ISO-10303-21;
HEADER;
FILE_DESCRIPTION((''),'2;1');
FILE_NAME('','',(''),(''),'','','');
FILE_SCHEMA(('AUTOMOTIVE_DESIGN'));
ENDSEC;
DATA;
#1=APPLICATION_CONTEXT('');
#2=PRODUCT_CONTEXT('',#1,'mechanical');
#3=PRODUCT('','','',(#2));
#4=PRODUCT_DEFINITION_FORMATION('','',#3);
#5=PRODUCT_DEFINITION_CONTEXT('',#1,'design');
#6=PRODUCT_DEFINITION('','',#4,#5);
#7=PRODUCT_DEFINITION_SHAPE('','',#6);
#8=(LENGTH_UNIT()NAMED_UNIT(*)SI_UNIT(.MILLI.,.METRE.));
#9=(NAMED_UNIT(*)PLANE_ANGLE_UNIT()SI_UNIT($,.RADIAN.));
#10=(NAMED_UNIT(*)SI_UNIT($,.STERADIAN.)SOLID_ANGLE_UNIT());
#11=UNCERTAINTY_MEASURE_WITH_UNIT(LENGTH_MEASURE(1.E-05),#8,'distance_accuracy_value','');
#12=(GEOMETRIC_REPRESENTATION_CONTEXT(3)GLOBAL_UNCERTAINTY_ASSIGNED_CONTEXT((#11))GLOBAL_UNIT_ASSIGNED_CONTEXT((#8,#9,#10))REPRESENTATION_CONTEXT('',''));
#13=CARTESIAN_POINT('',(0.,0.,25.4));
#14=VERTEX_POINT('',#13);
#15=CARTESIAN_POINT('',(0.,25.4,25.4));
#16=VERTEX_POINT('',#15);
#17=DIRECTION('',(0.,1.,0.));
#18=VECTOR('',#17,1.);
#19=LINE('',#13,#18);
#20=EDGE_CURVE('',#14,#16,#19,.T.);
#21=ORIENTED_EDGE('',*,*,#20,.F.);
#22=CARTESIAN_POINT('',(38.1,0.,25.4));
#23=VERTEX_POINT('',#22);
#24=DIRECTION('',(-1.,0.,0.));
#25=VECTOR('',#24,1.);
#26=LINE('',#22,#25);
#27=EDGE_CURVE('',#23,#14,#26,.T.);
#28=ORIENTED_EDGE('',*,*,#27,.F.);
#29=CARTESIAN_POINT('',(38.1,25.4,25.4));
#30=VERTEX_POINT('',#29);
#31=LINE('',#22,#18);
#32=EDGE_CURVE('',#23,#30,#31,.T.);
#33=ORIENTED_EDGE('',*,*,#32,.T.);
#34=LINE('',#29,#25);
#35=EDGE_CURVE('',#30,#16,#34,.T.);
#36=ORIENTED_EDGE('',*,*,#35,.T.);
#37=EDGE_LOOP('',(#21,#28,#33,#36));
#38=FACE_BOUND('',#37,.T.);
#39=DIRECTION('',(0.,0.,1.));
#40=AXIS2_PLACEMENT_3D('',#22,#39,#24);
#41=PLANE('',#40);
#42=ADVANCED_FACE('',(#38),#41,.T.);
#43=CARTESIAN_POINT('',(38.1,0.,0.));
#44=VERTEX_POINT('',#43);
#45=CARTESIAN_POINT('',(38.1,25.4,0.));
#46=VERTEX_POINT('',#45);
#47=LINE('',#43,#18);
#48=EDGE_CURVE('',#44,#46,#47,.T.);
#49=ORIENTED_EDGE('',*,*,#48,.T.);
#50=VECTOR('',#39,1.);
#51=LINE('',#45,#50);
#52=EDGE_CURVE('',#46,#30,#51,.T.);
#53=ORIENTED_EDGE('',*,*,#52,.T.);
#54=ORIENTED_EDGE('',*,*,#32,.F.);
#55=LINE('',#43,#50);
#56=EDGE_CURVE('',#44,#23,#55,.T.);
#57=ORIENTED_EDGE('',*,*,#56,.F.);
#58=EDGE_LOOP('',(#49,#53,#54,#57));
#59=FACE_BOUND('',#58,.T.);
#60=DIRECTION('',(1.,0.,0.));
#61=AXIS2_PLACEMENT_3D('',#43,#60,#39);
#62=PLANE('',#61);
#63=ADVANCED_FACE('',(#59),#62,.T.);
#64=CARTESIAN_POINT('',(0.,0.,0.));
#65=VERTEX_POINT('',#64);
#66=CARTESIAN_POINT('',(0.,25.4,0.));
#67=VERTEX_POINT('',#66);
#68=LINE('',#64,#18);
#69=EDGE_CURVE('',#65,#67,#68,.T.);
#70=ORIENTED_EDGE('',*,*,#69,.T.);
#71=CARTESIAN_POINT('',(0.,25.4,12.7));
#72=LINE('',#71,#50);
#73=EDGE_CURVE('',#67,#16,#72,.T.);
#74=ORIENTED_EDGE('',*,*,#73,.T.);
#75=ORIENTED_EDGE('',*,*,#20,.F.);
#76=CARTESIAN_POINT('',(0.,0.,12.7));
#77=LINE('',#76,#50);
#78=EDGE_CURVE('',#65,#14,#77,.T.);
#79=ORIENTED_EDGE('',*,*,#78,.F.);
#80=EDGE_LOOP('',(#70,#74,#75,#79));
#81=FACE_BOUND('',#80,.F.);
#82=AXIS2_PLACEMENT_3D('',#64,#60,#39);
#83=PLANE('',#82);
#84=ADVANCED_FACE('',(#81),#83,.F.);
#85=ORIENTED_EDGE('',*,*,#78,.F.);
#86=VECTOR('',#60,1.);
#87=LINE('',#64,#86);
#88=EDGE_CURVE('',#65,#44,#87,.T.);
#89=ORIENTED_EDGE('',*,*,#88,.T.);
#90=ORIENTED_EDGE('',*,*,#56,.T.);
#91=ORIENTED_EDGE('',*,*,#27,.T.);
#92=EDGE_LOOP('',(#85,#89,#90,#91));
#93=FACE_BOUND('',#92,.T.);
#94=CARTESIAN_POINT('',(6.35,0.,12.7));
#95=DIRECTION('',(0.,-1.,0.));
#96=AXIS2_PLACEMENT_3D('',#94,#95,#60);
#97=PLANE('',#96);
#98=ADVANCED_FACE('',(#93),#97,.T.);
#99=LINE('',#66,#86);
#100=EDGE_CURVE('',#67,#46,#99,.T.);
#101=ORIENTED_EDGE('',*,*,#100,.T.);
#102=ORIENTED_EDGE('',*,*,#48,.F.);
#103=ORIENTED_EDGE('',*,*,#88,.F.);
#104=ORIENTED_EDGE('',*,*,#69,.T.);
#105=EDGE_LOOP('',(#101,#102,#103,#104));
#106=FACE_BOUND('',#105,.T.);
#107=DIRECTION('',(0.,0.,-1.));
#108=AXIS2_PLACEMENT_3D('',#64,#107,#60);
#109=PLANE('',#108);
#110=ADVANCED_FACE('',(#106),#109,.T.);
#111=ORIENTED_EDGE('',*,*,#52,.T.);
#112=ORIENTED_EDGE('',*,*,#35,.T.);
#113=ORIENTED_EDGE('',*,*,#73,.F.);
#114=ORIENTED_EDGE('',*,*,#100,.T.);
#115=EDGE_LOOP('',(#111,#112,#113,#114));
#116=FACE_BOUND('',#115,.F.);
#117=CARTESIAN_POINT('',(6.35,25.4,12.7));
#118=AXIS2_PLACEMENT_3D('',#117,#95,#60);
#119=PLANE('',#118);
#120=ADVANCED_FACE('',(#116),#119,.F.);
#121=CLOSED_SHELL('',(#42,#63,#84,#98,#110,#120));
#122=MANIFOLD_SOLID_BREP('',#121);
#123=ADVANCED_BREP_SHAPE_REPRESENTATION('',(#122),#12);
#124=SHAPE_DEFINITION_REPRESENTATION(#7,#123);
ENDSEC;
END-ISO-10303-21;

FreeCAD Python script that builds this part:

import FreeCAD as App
import Part
import Sketcher
Q = App.Units.Quantity


def add_polygon(sketch, points):
    """Adds a closed chain of lines whose ends are joined by coincident constraints."""
    first, n = sketch.GeometryCount, len(points)
    for a, b in zip(points, points[1:] + points[:1]):
        sketch.addGeometry(Part.LineSegment(App.Vector(*a, 0), App.Vector(*b, 0)), False)
    for i in range(n):
        sketch.addConstraint(Sketcher.Constraint("Coincident", first + i, 2, first + (i + 1) % n, 1))

doc = App.newDocument("Part")
params = doc.addObject("Spreadsheet::Sheet", "Params")
for row, (alias, value) in enumerate([
    ("sketch1_height", "1 in"),
    ("sketch1_width", "1.5 in"),
    ("pad1_length", "1 in"),
], start=1):
    params.set(f"A{row}", alias)
    params.set(f"B{row}", "=" + value)
    params.setAlias(f"B{row}", alias)

body = doc.addObject("PartDesign::Body", "Body")

# Sketch on XZ plane
sketch1 = body.newObject("Sketcher::SketchObject", "Sketch")
sketch1.AttachmentSupport = (doc.getObject("XZ_Plane"), [""])
sketch1.MapMode = "FlatFace"
add_polygon(sketch1, [(0, 25), (0, 0), (38, 0), (38, 25)])  # lines 0-3
sketch1.addConstraint(Sketcher.Constraint("Vertical", 0))
sketch1.addConstraint(Sketcher.Constraint("Horizontal", 1))
sketch1.addConstraint(Sketcher.Constraint("Vertical", 2))
sketch1.addConstraint(Sketcher.Constraint("Horizontal", 3))
sketch1.addConstraint(Sketcher.Constraint("Coincident", 0, 2, -1, 1))
sketch1.addConstraint(Sketcher.Constraint("DistanceY", 0, 2, 0, 1, Q("1 in")))
sketch1.addConstraint(Sketcher.Constraint("DistanceX", 1, 1, 1, 2, Q("1.5 in")))
sketch1.setExpression("Constraints[9]", "Params.sketch1_height")
sketch1.setExpression("Constraints[10]", "Params.sketch1_width")
pad1 = body.newObject("PartDesign::Pad", "Pad")
pad1.Profile = sketch1
pad1.setExpression("Length", "Params.pad1_length")
pad1.Reversed = True

doc.recompute()
